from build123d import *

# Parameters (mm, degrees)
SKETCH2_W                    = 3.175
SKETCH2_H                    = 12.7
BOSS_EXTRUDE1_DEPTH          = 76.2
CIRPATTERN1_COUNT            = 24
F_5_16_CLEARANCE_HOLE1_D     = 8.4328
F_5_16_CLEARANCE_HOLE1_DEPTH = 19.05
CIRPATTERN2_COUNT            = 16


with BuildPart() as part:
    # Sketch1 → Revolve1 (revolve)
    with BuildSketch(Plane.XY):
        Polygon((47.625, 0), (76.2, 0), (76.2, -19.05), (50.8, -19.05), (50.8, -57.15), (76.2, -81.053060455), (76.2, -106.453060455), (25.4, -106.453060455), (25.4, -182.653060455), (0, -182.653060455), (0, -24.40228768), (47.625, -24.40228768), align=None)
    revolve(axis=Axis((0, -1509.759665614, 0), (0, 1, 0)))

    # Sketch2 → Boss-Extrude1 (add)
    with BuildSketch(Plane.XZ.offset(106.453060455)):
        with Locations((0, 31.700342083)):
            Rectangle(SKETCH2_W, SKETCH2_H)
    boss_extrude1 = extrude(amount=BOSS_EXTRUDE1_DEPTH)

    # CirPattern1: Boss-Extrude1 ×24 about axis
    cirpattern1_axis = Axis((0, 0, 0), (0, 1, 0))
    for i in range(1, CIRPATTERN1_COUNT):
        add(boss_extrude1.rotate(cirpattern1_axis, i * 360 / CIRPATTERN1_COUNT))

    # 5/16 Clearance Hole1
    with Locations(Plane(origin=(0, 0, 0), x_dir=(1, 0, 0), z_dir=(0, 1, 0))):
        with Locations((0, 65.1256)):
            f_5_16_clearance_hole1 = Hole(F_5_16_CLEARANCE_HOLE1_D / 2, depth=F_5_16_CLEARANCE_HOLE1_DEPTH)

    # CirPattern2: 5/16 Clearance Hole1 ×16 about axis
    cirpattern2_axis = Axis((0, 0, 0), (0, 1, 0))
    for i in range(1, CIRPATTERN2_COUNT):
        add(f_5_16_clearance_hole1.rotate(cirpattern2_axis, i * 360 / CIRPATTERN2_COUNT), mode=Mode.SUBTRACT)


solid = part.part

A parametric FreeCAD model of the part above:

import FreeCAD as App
import Part
import Sketcher
Q = App.Units.Quantity


def add_polygon(sketch, points):
    """Adds a closed chain of lines whose ends are joined by coincident constraints."""
    first, n = sketch.GeometryCount, len(points)
    for a, b in zip(points, points[1:] + points[:1]):
        sketch.addGeometry(Part.LineSegment(App.Vector(*a, 0), App.Vector(*b, 0)), False)
    for i in range(n):
        sketch.addConstraint(Sketcher.Constraint("Coincident", first + i, 2, first + (i + 1) % n, 1))

doc = App.newDocument("Part")
body = doc.addObject("PartDesign::Body", "Body")

sketch1 = doc.addObject("Sketcher::SketchObject", "Sketch")
body.addObject(sketch1)
sketch1.AttachmentSupport = (doc.XY_Plane, [""])
sketch1.MapMode = "FlatFace"
add_polygon(sketch1, [(76, 0), (48, 0), (48, -24), (0, -24), (0, -183), (25, -183), (25, -106), (76, -106), (76, -81), (51, -57), (51, -19), (76, -19)])
sketch1.addConstraint(Sketcher.Constraint("Horizontal", 0))
sketch1.addConstraint(Sketcher.Constraint("Vertical", 1))
sketch1.addConstraint(Sketcher.Constraint("Horizontal", 2))
sketch1.addConstraint(Sketcher.Constraint("Vertical", 3))
sketch1.addConstraint(Sketcher.Constraint("Horizontal", 4))
sketch1.addConstraint(Sketcher.Constraint("Vertical", 5))
sketch1.addConstraint(Sketcher.Constraint("Horizontal", 6))
sketch1.addConstraint(Sketcher.Constraint("Vertical", 7))
sketch1.addConstraint(Sketcher.Constraint("Vertical", 9))
sketch1.addConstraint(Sketcher.Constraint("Horizontal", 10))
sketch1.addConstraint(Sketcher.Constraint("Vertical", 11))
sketch1.addConstraint(Sketcher.Constraint("PointOnObject", 0, 2, -1))
sketch1.addConstraint(Sketcher.Constraint("PointOnObject", 2, 2, -2))
sketch1.addConstraint(Sketcher.Constraint("Vertical", 7, 2, 10, 2))
sketch1.addConstraint(Sketcher.Constraint("Equal", 4, 10))
sketch1.addConstraint(Sketcher.Constraint("Equal", 10, 7))
sketch1.addConstraint(Sketcher.Constraint("DistanceX", 4, 1, 4, 2, Q("1 in")))
sketch1.addConstraint(Sketcher.Constraint("DistanceX", 6, 1, 6, 2, Q("2 in")))
sketch1.addConstraint(Sketcher.Constraint("DistanceY", 5, 1, 5, 2, Q("3 in")))
sketch1.addConstraint(Sketcher.Constraint("DistanceY", 9, 1, 9, 2, Q("1.5 in")))
sketch1.addConstraint(Sketcher.Constraint("DistanceY", 11, 1, 11, 2, Q("0.75 in")))
sketch1.addConstraint(Sketcher.Constraint("DistanceX", 0, 2, 0, 1, Q("1.125 in")))
sketch1.addConstraint(Sketcher.Constraint("DistanceY", 1, 2, 1, 1, Q("24.402288 mm")))
sketch1.addConstraint(Sketcher.Constraint("DistanceY", 3, 2, 3, 1, Q("158.250773 mm")))
revolution = doc.addObject("PartDesign::Revolution", "Revolution")
body.addObject(revolution)
revolution.Profile = sketch1
revolution.ReferenceAxis = (sketch1, ["V_Axis"])
revolution.Angle = 360

sketch2 = doc.addObject("Sketcher::SketchObject", "Sketch001")
body.addObject(sketch2)
sketch2.AttachmentSupport = (doc.XZ_Plane, [""])
sketch2.MapMode = "FlatFace"
sketch2.AttachmentOffset = App.Placement(App.Vector(0, 0, 106.45306), App.Rotation())
add_polygon(sketch2, [(-1.6, 38.1), (-1.6, 25.4), (1.6, 25.4), (1.6, 38.1)])
sketch2.addConstraint(Sketcher.Constraint("Vertical", 0))
sketch2.addConstraint(Sketcher.Constraint("Horizontal", 1))
sketch2.addConstraint(Sketcher.Constraint("Vertical", 2))
sketch2.addConstraint(Sketcher.Constraint("Horizontal", 3))
sketch2.addConstraint(Sketcher.Constraint("DistanceY", 0, 2, 0, 1, Q("0.5 in")))
sketch2.addConstraint(Sketcher.Constraint("DistanceX", 1, 1, 1, 2, Q("0.125 in")))
sketch2.addConstraint(Sketcher.Constraint("DistanceX", 0, 2, -1, 1, Q("0.0625 in")))
sketch2.addConstraint(Sketcher.Constraint("DistanceY", -1, 1, 0, 2, Q("25.350342 mm")))
pad1 = doc.addObject("PartDesign::Pad", "Pad")
body.addObject(pad1)
pad1.Profile = sketch2
pad1.Length = Q("3 in")
doc.recompute()

polarpattern = doc.addObject("PartDesign::PolarPattern", "PolarPattern")
body.addObject(polarpattern)
polarpattern.Originals = [pad1]
polarpattern.Axis = (doc.Y_Axis, [""])
polarpattern.Angle = 360
polarpattern.Occurrences = 24
body.Tip = polarpattern

sketch3 = doc.addObject("Sketcher::SketchObject", "Sketch002")
body.addObject(sketch3)
sketch3.AttachmentSupport = (doc.XZ_Plane, [""])
sketch3.MapMode = "FlatFace"
sketch3.addGeometry(Part.Circle(App.Vector(0, -65.1, 0), App.Vector(0, 0, 1), 4.2), False)
sketch3.addConstraint(Sketcher.Constraint("PointOnObject", 0, 3, -2))
sketch3.addConstraint(Sketcher.Constraint("Diameter", 0, Q("0.332 in")))
sketch3.addConstraint(Sketcher.Constraint("DistanceY", 0, 3, -1, 1, Q("2.564 in")))
doc.recompute()
hole = doc.addObject("PartDesign::Hole", "Hole")
body.addObject(hole)
hole.Profile = sketch3
hole.ThreadType = "None"
hole.Diameter = Q("0.332 in")
hole.DepthType = "Dimension"
hole.Depth = Q("0.75 in")
hole.DrillPoint = "Flat"
hole.Reversed = True
doc.recompute()

polarpattern2 = doc.addObject("PartDesign::PolarPattern", "PolarPattern001")
body.addObject(polarpattern2)
polarpattern2.Originals = [hole]
polarpattern2.Axis = (doc.Y_Axis, [""])
polarpattern2.Angle = 360
polarpattern2.Occurrences = 16
body.Tip = polarpattern2

doc.recompute()
